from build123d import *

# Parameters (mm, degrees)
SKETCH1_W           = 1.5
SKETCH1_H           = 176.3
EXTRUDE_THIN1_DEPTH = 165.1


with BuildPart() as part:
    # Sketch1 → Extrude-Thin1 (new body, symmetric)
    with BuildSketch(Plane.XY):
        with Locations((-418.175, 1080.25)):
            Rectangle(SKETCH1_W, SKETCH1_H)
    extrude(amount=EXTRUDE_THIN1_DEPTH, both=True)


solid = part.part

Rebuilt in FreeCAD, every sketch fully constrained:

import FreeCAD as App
import Part
import Sketcher

doc = App.newDocument("Part")
body = doc.addObject("PartDesign::Body", "Body")

# Sketch on XY plane
sketch1 = doc.addObject("Sketcher::SketchObject", "Sketch")
body.addObject(sketch1)
sketch1.AttachmentSupport = (doc.XY_Plane, [""])
sketch1.MapMode = "FlatFace"
sketch1.addGeometry(Part.LineSegment(App.Vector(-418.9, 1168.4, 0), App.Vector(-418.9, 992.1, 0)), False)
sketch1.addGeometry(Part.LineSegment(App.Vector(-418.9, 992.1, 0), App.Vector(-417.4, 992.1, 0)), False)
sketch1.addGeometry(Part.LineSegment(App.Vector(-417.4, 992.1, 0), App.Vector(-417.4, 1168.4, 0)), False)
sketch1.addGeometry(Part.LineSegment(App.Vector(-417.4, 1168.4, 0), App.Vector(-418.9, 1168.4, 0)), False)
sketch1.addConstraint(Sketcher.Constraint("Coincident", 0, 2, 1, 1))
sketch1.addConstraint(Sketcher.Constraint("Coincident", 1, 2, 2, 1))
sketch1.addConstraint(Sketcher.Constraint("Coincident", 2, 2, 3, 1))
sketch1.addConstraint(Sketcher.Constraint("Coincident", 3, 2, 0, 1))
sketch1.addConstraint(Sketcher.Constraint("Vertical", 0))
sketch1.addConstraint(Sketcher.Constraint("Horizontal", 1))
sketch1.addConstraint(Sketcher.Constraint("Vertical", 2))
sketch1.addConstraint(Sketcher.Constraint("Horizontal", 3))
sketch1.addConstraint(Sketcher.Constraint("DistanceX", 1, 1, 1, 2, 1.5))
sketch1.addConstraint(Sketcher.Constraint("DistanceY", 0, 2, 0, 1, 176.3))
sketch1.addConstraint(Sketcher.Constraint("DistanceY", -1, 1, 0, 2, 992.1))
sketch1.addConstraint(Sketcher.Constraint("DistanceX", 0, 2, -1, 1, 418.925))
pad1 = doc.addObject("PartDesign::Pad", "Pad")
body.addObject(pad1)
pad1.Profile = sketch1
pad1.Length = 330.2
pad1.Midplane = True

doc.recompute()
